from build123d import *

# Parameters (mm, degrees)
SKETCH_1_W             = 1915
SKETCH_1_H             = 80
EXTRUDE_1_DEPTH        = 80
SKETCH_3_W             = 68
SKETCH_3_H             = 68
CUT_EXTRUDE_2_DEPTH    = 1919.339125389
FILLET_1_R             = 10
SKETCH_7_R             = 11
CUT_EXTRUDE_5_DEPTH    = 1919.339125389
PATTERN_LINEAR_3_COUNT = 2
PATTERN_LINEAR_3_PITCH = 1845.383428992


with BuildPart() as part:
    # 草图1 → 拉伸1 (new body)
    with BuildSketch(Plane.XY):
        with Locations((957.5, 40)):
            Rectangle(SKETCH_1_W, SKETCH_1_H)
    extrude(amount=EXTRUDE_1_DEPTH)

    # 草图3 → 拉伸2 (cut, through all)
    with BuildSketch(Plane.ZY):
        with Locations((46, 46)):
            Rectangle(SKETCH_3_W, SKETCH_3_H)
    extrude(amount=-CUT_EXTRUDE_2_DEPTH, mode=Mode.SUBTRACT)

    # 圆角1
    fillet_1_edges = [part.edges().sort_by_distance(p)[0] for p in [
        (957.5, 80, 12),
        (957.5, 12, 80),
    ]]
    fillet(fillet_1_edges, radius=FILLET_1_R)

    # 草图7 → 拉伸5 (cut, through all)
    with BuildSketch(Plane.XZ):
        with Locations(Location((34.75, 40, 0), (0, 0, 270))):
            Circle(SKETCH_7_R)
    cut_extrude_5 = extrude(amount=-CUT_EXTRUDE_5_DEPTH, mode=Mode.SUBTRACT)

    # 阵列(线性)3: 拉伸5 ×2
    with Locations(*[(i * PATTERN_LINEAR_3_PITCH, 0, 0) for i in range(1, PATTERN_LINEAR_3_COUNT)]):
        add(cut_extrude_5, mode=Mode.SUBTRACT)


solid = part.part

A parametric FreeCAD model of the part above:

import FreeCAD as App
import Part
import Sketcher

V = App.Vector


def edges_at(feature, points):
    """Names of the edges that pass closest to the given points."""
    edges = feature.Shape.Edges
    near = lambda p: min(range(len(edges)), key=lambda i: edges[i].distToShape(Part.Vertex(*p))[0])
    return sorted({f"Edge{near(p) + 1}" for p in points})

doc = App.newDocument("Part")
body = doc.addObject("PartDesign::Body", "Body")

# Sketch on XY plane
sketch1 = body.newObject("Sketcher::SketchObject", "Sketch")
sketch1.AttachmentSupport = (doc.getObject("XY_Plane"), [""])
sketch1.MapMode = "FlatFace"
sketch1.addGeometry(Part.LineSegment(V(0, 80, 0), V(0, 0, 0)), False)
sketch1.addGeometry(Part.LineSegment(V(0, 0, 0), V(1915, 0, 0)), False)
sketch1.addGeometry(Part.LineSegment(V(1915, 0, 0), V(1915, 80, 0)), False)
sketch1.addGeometry(Part.LineSegment(V(1915, 80, 0), V(0, 80, 0)), False)
sketch1.addConstraint(Sketcher.Constraint("Coincident", 0, 2, 1, 1))
sketch1.addConstraint(Sketcher.Constraint("Coincident", 1, 2, 2, 1))
sketch1.addConstraint(Sketcher.Constraint("Coincident", 2, 2, 3, 1))
sketch1.addConstraint(Sketcher.Constraint("Coincident", 3, 2, 0, 1))
sketch1.addConstraint(Sketcher.Constraint("Vertical", 0))
sketch1.addConstraint(Sketcher.Constraint("Horizontal", 1))
sketch1.addConstraint(Sketcher.Constraint("Vertical", 2))
sketch1.addConstraint(Sketcher.Constraint("Horizontal", 3))
sketch1.addConstraint(Sketcher.Constraint("Coincident", 0, 2, -1, 1))
sketch1.addConstraint(Sketcher.Constraint("DistanceX", 1, 1, 1, 2, 1915.0))
sketch1.addConstraint(Sketcher.Constraint("DistanceY", 0, 2, 0, 1, 80.0))
pad1 = body.newObject("PartDesign::Pad", "Pad")
pad1.Profile = sketch1
pad1.Length = 80

# Sketch on YZ plane
sketch2 = body.newObject("Sketcher::SketchObject", "Sketch001")
sketch2.AttachmentSupport = (doc.getObject("YZ_Plane"), [""])
sketch2.MapMode = "FlatFace"
sketch2.addGeometry(Part.LineSegment(V(80, 12, 0), V(12, 12, 0)), False)
sketch2.addGeometry(Part.LineSegment(V(12, 12, 0), V(12, 80, 0)), False)
sketch2.addGeometry(Part.LineSegment(V(12, 80, 0), V(80, 80, 0)), False)
sketch2.addGeometry(Part.LineSegment(V(80, 80, 0), V(80, 12, 0)), False)
sketch2.addConstraint(Sketcher.Constraint("Coincident", 0, 2, 1, 1))
sketch2.addConstraint(Sketcher.Constraint("Coincident", 1, 2, 2, 1))
sketch2.addConstraint(Sketcher.Constraint("Coincident", 2, 2, 3, 1))
sketch2.addConstraint(Sketcher.Constraint("Coincident", 3, 2, 0, 1))
sketch2.addConstraint(Sketcher.Constraint("Horizontal", 0))
sketch2.addConstraint(Sketcher.Constraint("Vertical", 1))
sketch2.addConstraint(Sketcher.Constraint("Horizontal", 2))
sketch2.addConstraint(Sketcher.Constraint("Vertical", 3))
sketch2.addConstraint(Sketcher.Constraint("Equal", 2, 1))
sketch2.addConstraint(Sketcher.Constraint("DistanceX", 0, 2, 0, 1, 68.0))
sketch2.addConstraint(Sketcher.Constraint("DistanceX", -1, 1, 0, 2, 12.0))
sketch2.addConstraint(Sketcher.Constraint("DistanceY", -1, 1, 0, 2, 12.0))
pocket1 = body.newObject("PartDesign::Pocket", "Pocket")
pocket1.Profile = sketch2
pocket1.Type = "ThroughAll"
pocket1.Reversed = True
doc.recompute()

fillet = body.newObject("PartDesign::Fillet", "Fillet")
fillet.Base = (pocket1, edges_at(pocket1, [(957.5, 80, 12), (957.5, 12, 80)]))
fillet.Radius = 10

# Sketch on XZ plane
sketch3 = body.newObject("Sketcher::SketchObject", "Sketch002")
sketch3.AttachmentSupport = (doc.getObject("XZ_Plane"), [""])
sketch3.MapMode = "FlatFace"
sketch3.addGeometry(Part.Circle(V(35, 40, 0), V(0, 0, 1), 11), False)
sketch3.addConstraint(Sketcher.Constraint("Diameter", 0, 22.0))
sketch3.addConstraint(Sketcher.Constraint("DistanceY", -1, 1, 0, 3, 40.0))
sketch3.addConstraint(Sketcher.Constraint("DistanceX", -1, 1, 0, 3, 34.75))
pocket2 = body.newObject("PartDesign::Pocket", "Pocket001")
pocket2.Profile = sketch3
pocket2.Type = "ThroughAll"
doc.recompute()

linearpattern = body.newObject("PartDesign::LinearPattern", "LinearPattern")
linearpattern.Originals = [pocket2]
linearpattern.Direction = (doc.getObject("X_Axis"), [""])
linearpattern.Mode = "offset"
linearpattern.Offset = 1845.383429
linearpattern.Occurrences = 2
body.Tip = linearpattern

doc.recompute()
